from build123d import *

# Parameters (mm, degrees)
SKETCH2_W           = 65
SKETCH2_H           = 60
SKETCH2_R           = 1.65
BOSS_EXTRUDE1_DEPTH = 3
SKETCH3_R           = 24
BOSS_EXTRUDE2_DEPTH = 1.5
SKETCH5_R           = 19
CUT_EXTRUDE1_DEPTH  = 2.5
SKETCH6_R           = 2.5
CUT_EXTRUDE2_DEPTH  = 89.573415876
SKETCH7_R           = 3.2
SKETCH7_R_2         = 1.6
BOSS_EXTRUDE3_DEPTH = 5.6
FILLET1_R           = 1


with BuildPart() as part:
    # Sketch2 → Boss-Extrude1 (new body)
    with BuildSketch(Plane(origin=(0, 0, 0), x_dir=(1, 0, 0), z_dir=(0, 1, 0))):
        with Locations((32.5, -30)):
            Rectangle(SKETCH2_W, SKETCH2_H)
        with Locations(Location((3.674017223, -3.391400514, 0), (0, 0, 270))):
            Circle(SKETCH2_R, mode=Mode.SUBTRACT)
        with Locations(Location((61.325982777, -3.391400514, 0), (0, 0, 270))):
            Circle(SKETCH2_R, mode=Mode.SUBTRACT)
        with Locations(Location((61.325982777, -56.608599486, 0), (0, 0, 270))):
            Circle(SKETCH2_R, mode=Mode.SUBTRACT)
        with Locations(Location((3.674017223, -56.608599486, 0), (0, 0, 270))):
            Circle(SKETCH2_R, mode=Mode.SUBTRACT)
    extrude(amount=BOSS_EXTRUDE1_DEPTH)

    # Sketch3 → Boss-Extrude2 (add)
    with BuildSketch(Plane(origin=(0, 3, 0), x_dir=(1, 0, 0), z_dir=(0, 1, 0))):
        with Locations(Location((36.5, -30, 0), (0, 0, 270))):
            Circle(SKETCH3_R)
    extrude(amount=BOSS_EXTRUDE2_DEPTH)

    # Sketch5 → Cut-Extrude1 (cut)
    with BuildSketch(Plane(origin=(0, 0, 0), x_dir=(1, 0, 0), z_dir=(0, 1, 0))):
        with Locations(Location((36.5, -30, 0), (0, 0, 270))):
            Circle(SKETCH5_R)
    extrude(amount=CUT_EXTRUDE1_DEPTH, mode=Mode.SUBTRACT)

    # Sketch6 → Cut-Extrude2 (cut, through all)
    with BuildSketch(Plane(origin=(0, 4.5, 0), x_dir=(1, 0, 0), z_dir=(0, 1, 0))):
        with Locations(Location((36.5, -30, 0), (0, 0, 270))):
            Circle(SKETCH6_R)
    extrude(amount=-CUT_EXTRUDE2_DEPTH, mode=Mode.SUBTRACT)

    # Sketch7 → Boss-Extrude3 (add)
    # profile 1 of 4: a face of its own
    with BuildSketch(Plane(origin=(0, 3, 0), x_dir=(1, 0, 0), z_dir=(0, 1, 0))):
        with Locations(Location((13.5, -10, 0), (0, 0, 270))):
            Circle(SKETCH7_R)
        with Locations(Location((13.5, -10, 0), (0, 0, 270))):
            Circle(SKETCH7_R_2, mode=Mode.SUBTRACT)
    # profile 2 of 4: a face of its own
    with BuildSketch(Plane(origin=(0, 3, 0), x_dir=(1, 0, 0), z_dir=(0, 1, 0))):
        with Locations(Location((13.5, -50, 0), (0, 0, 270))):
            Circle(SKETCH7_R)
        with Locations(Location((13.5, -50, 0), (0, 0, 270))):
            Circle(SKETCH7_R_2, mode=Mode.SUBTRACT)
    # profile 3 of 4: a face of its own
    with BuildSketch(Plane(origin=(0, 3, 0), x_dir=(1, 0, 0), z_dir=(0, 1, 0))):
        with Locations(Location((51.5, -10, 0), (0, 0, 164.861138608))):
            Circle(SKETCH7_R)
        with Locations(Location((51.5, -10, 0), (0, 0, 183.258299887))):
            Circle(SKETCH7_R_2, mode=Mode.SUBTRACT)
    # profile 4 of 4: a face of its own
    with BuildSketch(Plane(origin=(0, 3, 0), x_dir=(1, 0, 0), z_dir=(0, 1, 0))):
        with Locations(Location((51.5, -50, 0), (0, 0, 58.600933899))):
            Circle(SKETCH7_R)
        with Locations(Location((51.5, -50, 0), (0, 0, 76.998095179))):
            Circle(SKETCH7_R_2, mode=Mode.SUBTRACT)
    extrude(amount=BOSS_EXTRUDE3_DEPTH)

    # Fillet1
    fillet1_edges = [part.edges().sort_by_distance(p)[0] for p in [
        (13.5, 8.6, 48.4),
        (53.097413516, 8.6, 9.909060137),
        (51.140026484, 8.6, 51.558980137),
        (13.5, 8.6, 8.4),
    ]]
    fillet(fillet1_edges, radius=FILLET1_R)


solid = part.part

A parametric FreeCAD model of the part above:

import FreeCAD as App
import Part
import Sketcher
from FreeCAD import Vector
Q = App.Units.Quantity


def edges_at(feature, points):
    """Names of the edges that pass closest to the given points."""
    edges = feature.Shape.Edges
    near = lambda p: min(range(len(edges)), key=lambda i: edges[i].distToShape(Part.Vertex(*p))[0])
    return sorted({f"Edge{near(p) + 1}" for p in points})


def add_polygon(sketch, points):
    """Adds a closed chain of lines whose ends are joined by coincident constraints."""
    first, n = sketch.GeometryCount, len(points)
    for a, b in zip(points, points[1:] + points[:1]):
        sketch.addGeometry(Part.LineSegment(App.Vector(*a, 0), App.Vector(*b, 0)), False)
    for i in range(n):
        sketch.addConstraint(Sketcher.Constraint("Coincident", first + i, 2, first + (i + 1) % n, 1))

doc = App.newDocument("Part")
params = doc.addObject("Spreadsheet::Sheet", "Params")
for row, (alias, value) in enumerate([
    ("sketch1_diameter", "3.3 mm"),
    ("sketch1_width", "65 mm"),
    ("sketch1_height", "60 mm"),
    ("pad1_length", "3 mm"),
    ("sketch2_diameter", "48 mm"),
    ("pad2_length", "1.5 mm"),
    ("sketch3_diameter", "38 mm"),
    ("pocket1_length", "2.5 mm"),
    ("sketch4_diameter", "5 mm"),
    ("sketch5_diameter", "6.4 mm"),
    ("sketch5_diameter2", "3.2 mm"),
    ("pad3_length", "5.6 mm"),
    ("fillet_radius", "1 mm"),
], start=1):
    params.set(f"A{row}", alias)
    params.set(f"B{row}", "=" + value)
    params.setAlias(f"B{row}", alias)

body = doc.addObject("PartDesign::Body", "Body")

sketch1 = body.newObject("Sketcher::SketchObject", "Sketch")
sketch1.AttachmentSupport = (doc.getObject("XZ_Plane"), [""])
sketch1.MapMode = "FlatFace"
add_polygon(sketch1, [(0, 0), (0, 60), (65, 60), (65, 0)])
sketch1.addGeometry(Part.Circle(Vector(3.674017, 56.608599, 0), Vector(0, 0, 1), 1.65), False)
sketch1.addGeometry(Part.Circle(Vector(61.325983, 56.608599, 0), Vector(0, 0, 1), 1.65), False)
sketch1.addGeometry(Part.Circle(Vector(3.674017, 3.391401, 0), Vector(0, 0, 1), 1.65), False)
sketch1.addGeometry(Part.Circle(Vector(61.325983, 3.391401, 0), Vector(0, 0, 1), 1.65), False)
sketch1.addConstraint([
    Sketcher.Constraint("Vertical", 0),
    Sketcher.Constraint("Horizontal", 1),
    Sketcher.Constraint("Vertical", 2),
    Sketcher.Constraint("Horizontal", 3),
    Sketcher.Constraint("Coincident", 3, 2, -1, 1),
    Sketcher.Constraint("Equal", 4, 5),
    Sketcher.Constraint("Equal", 5, 6),
    Sketcher.Constraint("Equal", 6, 7),
    Sketcher.Constraint("Horizontal", 4, 3, 5, 3),
    Sketcher.Constraint("Horizontal", 6, 3, 7, 3),
    Sketcher.Constraint("Vertical", 4, 3, 6, 3),
    Sketcher.Constraint("Vertical", 5, 3, 7, 3),
    Sketcher.Constraint("Diameter", 4, Q("3.3 mm")),
    Sketcher.Constraint("DistanceX", 1, 1, 1, 2, Q("65 mm")),
    Sketcher.Constraint("DistanceY", 0, 1, 0, 2, Q("60 mm")),
    Sketcher.Constraint("DistanceY", -1, 1, 4, 3, Q("56.608599 mm")),
    Sketcher.Constraint("DistanceY", -1, 1, 6, 3, Q("3.391401 mm")),
    Sketcher.Constraint("DistanceX", -1, 1, 4, 3, Q("3.674017 mm")),
    Sketcher.Constraint("DistanceX", -1, 1, 5, 3, Q("61.325983 mm")),
])
sketch1.setExpression("Constraints[16]", "Params.sketch1_diameter")
sketch1.setExpression("Constraints[17]", "Params.sketch1_width")
sketch1.setExpression("Constraints[18]", "Params.sketch1_height")
pad1 = body.newObject("PartDesign::Pad", "Pad")
pad1.Profile = sketch1
pad1.setExpression("Length", "Params.pad1_length")
pad1.Reversed = True

sketch2 = body.newObject("Sketcher::SketchObject", "Sketch001")
sketch2.AttachmentSupport = (doc.getObject("XZ_Plane"), [""])
sketch2.MapMode = "FlatFace"
sketch2.AttachmentOffset = App.Placement(Vector(0, 0, -3), App.Rotation())
sketch2.addGeometry(Part.Circle(Vector(36.5, 30, 0), Vector(0, 0, 1), 24), False)
sketch2.addConstraint([
    Sketcher.Constraint("Diameter", 0, Q("48 mm")),
    Sketcher.Constraint("DistanceY", -1, 1, 0, 3, Q("30 mm")),
    Sketcher.Constraint("DistanceX", -1, 1, 0, 3, Q("36.5 mm")),
])
sketch2.setExpression("Constraints[0]", "Params.sketch2_diameter")
pad2 = body.newObject("PartDesign::Pad", "Pad001")
pad2.Profile = sketch2
pad2.setExpression("Length", "Params.pad2_length")
pad2.Reversed = True

sketch3 = body.newObject("Sketcher::SketchObject", "Sketch002")
sketch3.AttachmentSupport = (doc.getObject("XZ_Plane"), [""])
sketch3.MapMode = "FlatFace"
sketch3.addGeometry(Part.Circle(Vector(36.5, 30, 0), Vector(0, 0, 1), 19), False)
sketch3.addConstraint([
    Sketcher.Constraint("Diameter", 0, Q("38 mm")),
    Sketcher.Constraint("DistanceY", -1, 1, 0, 3, Q("30 mm")),
    Sketcher.Constraint("DistanceX", -1, 1, 0, 3, Q("36.5 mm")),
])
sketch3.setExpression("Constraints[0]", "Params.sketch3_diameter")
pocket1 = body.newObject("PartDesign::Pocket", "Pocket")
pocket1.Profile = sketch3
pocket1.setExpression("Length", "Params.pocket1_length")

sketch4 = body.newObject("Sketcher::SketchObject", "Sketch003")
sketch4.AttachmentSupport = (doc.getObject("XZ_Plane"), [""])
sketch4.MapMode = "FlatFace"
sketch4.AttachmentOffset = App.Placement(Vector(0, 0, -4.5), App.Rotation())
sketch4.addGeometry(Part.Circle(Vector(36.5, 30, 0), Vector(0, 0, 1), 2.5), False)
sketch4.addConstraint([
    Sketcher.Constraint("Diameter", 0, Q("5 mm")),
    Sketcher.Constraint("DistanceY", -1, 1, 0, 3, Q("30 mm")),
    Sketcher.Constraint("DistanceX", -1, 1, 0, 3, Q("36.5 mm")),
])
sketch4.setExpression("Constraints[0]", "Params.sketch4_diameter")
pocket2 = body.newObject("PartDesign::Pocket", "Pocket001")
pocket2.Profile = sketch4
pocket2.Type = "ThroughAll"
pocket2.Reversed = True

sketch5 = body.newObject("Sketcher::SketchObject", "Sketch004")
sketch5.AttachmentSupport = (doc.getObject("XZ_Plane"), [""])
sketch5.MapMode = "FlatFace"
sketch5.AttachmentOffset = App.Placement(Vector(0, 0, -3), App.Rotation())
sketch5.addGeometry([
    Part.Circle(Vector(13.5, 10, 0), Vector(0, 0, 1), 3.2),
    Part.Circle(Vector(13.5, 10, 0), Vector(0, 0, 1), 1.6),
    Part.Circle(Vector(13.5, 50, 0), Vector(0, 0, 1), 3.2),
    Part.Circle(Vector(13.5, 50, 0), Vector(0, 0, 1), 1.6),
    Part.Circle(Vector(51.5, 10, 0), Vector(0, 0, 1), 3.2),
    Part.Circle(Vector(51.5, 10, 0), Vector(0, 0, 1), 1.6),
    Part.Circle(Vector(51.5, 50, 0), Vector(0, 0, 1), 3.2),
    Part.Circle(Vector(51.5, 50, 0), Vector(0, 0, 1), 1.6),
], False)
sketch5.addConstraint([
    Sketcher.Constraint("Coincident", 1, 3, 0, 3),
    Sketcher.Constraint("Coincident", 3, 3, 2, 3),
    Sketcher.Constraint("Coincident", 5, 3, 4, 3),
    Sketcher.Constraint("Coincident", 7, 3, 6, 3),
    Sketcher.Constraint("Equal", 0, 2),
    Sketcher.Constraint("Equal", 1, 3),
    Sketcher.Constraint("Equal", 2, 4),
    Sketcher.Constraint("Equal", 3, 5),
    Sketcher.Constraint("Equal", 4, 6),
    Sketcher.Constraint("Equal", 5, 7),
    Sketcher.Constraint("Horizontal", 1, 3, 4, 3),
    Sketcher.Constraint("Horizontal", 3, 3, 6, 3),
    Sketcher.Constraint("Vertical", 1, 3, 2, 3),
    Sketcher.Constraint("Vertical", 5, 3, 6, 3),
    Sketcher.Constraint("Diameter", 0, Q("6.4 mm")),
    Sketcher.Constraint("Diameter", 1, Q("3.2 mm")),
    Sketcher.Constraint("DistanceY", -1, 1, 0, 3, Q("10 mm")),
    Sketcher.Constraint("DistanceY", -1, 1, 2, 3, Q("50 mm")),
    Sketcher.Constraint("DistanceX", 0, 3, 4, 3, Q("38 mm")),
    Sketcher.Constraint("DistanceX", -1, 1, 0, 3, Q("13.5 mm")),
])
sketch5.setExpression("Constraints[14]", "Params.sketch5_diameter")
sketch5.setExpression("Constraints[15]", "Params.sketch5_diameter2")
pad3 = body.newObject("PartDesign::Pad", "Pad002")
pad3.Profile = sketch5
pad3.setExpression("Length", "Params.pad3_length")
pad3.Reversed = True
doc.recompute()

fillet = body.newObject("PartDesign::Fillet", "Fillet")
fillet.Base = (pad3, edges_at(pad3, [
    (13.5, 8.6, 48.4),
    (53.097, 8.6, 9.909),
    (51.14, 8.6, 51.559),
    (13.5, 8.6, 8.4),
]))
fillet.setExpression("Radius", "Params.fillet_radius")

doc.recompute()
